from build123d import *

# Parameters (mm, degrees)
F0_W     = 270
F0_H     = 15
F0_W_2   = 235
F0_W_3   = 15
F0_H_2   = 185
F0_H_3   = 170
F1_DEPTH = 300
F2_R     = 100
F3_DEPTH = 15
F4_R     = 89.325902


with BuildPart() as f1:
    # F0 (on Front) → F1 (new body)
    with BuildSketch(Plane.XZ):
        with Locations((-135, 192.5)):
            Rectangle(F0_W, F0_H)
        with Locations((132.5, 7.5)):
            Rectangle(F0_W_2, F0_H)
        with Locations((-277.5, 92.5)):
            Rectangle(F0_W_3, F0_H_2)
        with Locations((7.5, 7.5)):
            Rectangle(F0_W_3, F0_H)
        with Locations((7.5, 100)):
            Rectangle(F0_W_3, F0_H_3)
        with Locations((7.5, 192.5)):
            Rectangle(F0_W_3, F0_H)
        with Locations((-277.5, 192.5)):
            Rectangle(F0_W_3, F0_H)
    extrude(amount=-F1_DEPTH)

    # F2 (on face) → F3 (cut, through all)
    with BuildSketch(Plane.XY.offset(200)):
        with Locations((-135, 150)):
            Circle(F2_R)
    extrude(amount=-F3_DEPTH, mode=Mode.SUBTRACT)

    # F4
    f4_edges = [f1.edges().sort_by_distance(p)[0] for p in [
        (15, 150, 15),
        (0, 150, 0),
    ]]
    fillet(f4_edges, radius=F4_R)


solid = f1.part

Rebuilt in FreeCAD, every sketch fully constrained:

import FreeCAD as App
import Part
import Sketcher
Q = App.Units.Quantity


def edges_at(feature, points):
    """Names of the edges that pass closest to the given points."""
    edges = feature.Shape.Edges
    near = lambda p: min(range(len(edges)), key=lambda i: edges[i].distToShape(Part.Vertex(*p))[0])
    return sorted({f"Edge{near(p) + 1}" for p in points})


def add_polygon(sketch, points):
    """Adds a closed chain of lines whose ends are joined by coincident constraints."""
    first, n = sketch.GeometryCount, len(points)
    for a, b in zip(points, points[1:] + points[:1]):
        sketch.addGeometry(Part.LineSegment(App.Vector(*a, 0), App.Vector(*b, 0)), False)
    for i in range(n):
        sketch.addConstraint(Sketcher.Constraint("Coincident", first + i, 2, first + (i + 1) % n, 1))

doc = App.newDocument("Part")
body = doc.addObject("PartDesign::Body", "Body")

# Sketch on XZ plane
sketch1 = doc.addObject("Sketcher::SketchObject", "Sketch")
body.addObject(sketch1)
sketch1.AttachmentSupport = (doc.XZ_Plane, [""])
sketch1.MapMode = "FlatFace"
add_polygon(sketch1, [(-270, 185), (0, 185), (0, 0), (250, 0), (250, 15), (15, 15), (15, 200), (-285, 200), (-285, 0), (-270, 0)])  # lines 0-9
sketch1.addConstraint(Sketcher.Constraint("Horizontal", 0))
sketch1.addConstraint(Sketcher.Constraint("Vertical", 1))
sketch1.addConstraint(Sketcher.Constraint("Horizontal", 2))
sketch1.addConstraint(Sketcher.Constraint("Vertical", 3))
sketch1.addConstraint(Sketcher.Constraint("Horizontal", 4))
sketch1.addConstraint(Sketcher.Constraint("Vertical", 5))
sketch1.addConstraint(Sketcher.Constraint("Horizontal", 6))
sketch1.addConstraint(Sketcher.Constraint("Vertical", 7))
sketch1.addConstraint(Sketcher.Constraint("Horizontal", 8))
sketch1.addConstraint(Sketcher.Constraint("Vertical", 9))
sketch1.addConstraint(Sketcher.Constraint("Coincident", 1, 2, -1, 1))
sketch1.addConstraint(Sketcher.Constraint("PointOnObject", 7, 2, -1))
sketch1.addConstraint(Sketcher.Constraint("Equal", 8, 3))
sketch1.addConstraint(Sketcher.Constraint("Equal", 1, 5))
sketch1.addConstraint(Sketcher.Constraint("DistanceX", 0, 1, 0, 2, Q("270 mm")))
sketch1.addConstraint(Sketcher.Constraint("DistanceX", 2, 1, 2, 2, Q("250 mm")))
sketch1.addConstraint(Sketcher.Constraint("DistanceX", 4, 2, 4, 1, Q("235 mm")))
sketch1.addConstraint(Sketcher.Constraint("DistanceX", 6, 2, 6, 1, Q("300 mm")))
sketch1.addConstraint(Sketcher.Constraint("DistanceY", 1, 2, 1, 1, Q("185 mm")))
pad1 = doc.addObject("PartDesign::Pad", "Pad")
body.addObject(pad1)
pad1.Profile = sketch1
pad1.Length = 300
pad1.Reversed = True

# Sketch on XY plane
sketch2 = doc.addObject("Sketcher::SketchObject", "Sketch001")
body.addObject(sketch2)
sketch2.AttachmentSupport = (doc.XY_Plane, [""])
sketch2.MapMode = "FlatFace"
sketch2.AttachmentOffset = App.Placement(App.Vector(0, 0, 200), App.Rotation())
sketch2.addGeometry(Part.Circle(App.Vector(-135, 150, 0), App.Vector(0, 0, 1), 100), False)
sketch2.addConstraint(Sketcher.Constraint("Diameter", 0, Q("200 mm")))
sketch2.addConstraint(Sketcher.Constraint("DistanceX", 0, 3, -1, 1, Q("135 mm")))
sketch2.addConstraint(Sketcher.Constraint("DistanceY", -1, 1, 0, 3, Q("150 mm")))
pocket1 = doc.addObject("PartDesign::Pocket", "Pocket")
body.addObject(pocket1)
pocket1.Profile = sketch2
pocket1.Type = "ThroughAll"
doc.recompute()

fillet = doc.addObject("PartDesign::Fillet", "Fillet")
body.addObject(fillet)
fillet.Base = (pocket1, edges_at(pocket1, [(15, 150, 15), (0, 150, 0)]))
fillet.Radius = 89.325902

doc.recompute()
